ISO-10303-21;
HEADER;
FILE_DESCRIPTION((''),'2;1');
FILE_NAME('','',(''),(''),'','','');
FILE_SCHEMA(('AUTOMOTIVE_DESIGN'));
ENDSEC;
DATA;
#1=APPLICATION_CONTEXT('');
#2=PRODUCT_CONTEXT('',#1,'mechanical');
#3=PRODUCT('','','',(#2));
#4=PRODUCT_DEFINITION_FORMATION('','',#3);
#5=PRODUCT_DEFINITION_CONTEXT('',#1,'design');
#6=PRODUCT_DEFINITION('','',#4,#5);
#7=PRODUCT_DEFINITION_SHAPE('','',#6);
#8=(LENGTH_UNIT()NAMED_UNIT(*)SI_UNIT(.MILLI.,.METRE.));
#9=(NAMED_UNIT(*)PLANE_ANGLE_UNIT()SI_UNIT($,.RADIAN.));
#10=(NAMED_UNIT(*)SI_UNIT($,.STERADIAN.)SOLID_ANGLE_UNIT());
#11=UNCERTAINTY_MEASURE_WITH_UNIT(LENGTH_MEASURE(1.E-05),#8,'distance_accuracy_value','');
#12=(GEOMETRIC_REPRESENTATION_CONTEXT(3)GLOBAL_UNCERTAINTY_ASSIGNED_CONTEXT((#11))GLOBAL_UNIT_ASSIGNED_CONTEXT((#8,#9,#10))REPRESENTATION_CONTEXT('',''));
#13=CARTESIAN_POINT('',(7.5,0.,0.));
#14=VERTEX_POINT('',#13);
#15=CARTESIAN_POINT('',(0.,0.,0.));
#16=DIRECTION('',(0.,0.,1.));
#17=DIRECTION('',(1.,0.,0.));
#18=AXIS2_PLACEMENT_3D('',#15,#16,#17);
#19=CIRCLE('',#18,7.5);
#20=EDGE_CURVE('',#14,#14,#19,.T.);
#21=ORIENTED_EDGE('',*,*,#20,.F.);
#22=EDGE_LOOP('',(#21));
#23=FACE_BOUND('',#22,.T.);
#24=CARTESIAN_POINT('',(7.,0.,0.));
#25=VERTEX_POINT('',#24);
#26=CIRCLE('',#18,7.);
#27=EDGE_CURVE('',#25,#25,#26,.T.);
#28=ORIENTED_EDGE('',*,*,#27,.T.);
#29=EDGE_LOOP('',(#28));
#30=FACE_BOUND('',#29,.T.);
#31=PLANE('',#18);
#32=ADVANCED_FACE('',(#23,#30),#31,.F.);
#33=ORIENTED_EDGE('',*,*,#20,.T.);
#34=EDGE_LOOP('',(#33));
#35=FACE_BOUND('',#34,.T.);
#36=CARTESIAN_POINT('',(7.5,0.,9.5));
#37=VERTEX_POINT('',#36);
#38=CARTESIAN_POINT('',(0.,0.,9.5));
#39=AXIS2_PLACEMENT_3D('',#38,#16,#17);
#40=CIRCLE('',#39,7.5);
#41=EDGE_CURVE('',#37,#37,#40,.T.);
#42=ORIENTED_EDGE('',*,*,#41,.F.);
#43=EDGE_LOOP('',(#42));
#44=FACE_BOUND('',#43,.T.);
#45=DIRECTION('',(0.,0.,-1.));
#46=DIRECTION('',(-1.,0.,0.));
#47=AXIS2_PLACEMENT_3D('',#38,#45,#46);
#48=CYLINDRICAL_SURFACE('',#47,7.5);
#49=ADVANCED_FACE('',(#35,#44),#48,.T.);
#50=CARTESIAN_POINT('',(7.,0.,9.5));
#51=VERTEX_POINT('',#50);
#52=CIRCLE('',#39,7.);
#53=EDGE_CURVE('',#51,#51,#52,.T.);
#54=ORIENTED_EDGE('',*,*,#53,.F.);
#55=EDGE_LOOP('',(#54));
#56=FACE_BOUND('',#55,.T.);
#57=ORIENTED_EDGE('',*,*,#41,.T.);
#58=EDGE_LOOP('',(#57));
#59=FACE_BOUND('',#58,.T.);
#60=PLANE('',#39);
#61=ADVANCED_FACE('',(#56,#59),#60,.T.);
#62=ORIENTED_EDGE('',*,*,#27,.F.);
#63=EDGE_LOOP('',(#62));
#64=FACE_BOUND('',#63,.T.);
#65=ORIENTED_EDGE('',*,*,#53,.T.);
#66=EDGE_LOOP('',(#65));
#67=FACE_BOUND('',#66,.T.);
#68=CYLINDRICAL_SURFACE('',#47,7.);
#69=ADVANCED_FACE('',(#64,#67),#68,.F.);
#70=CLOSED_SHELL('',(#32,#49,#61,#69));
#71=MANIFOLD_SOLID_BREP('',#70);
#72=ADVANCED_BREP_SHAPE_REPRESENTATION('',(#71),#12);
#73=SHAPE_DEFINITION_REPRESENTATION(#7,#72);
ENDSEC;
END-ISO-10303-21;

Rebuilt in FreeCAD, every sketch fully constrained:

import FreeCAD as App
import Part
import Sketcher
from FreeCAD import Vector

doc = App.newDocument("Part")
body = doc.addObject("PartDesign::Body", "Body")

sketch1 = doc.addObject("Sketcher::SketchObject", "Sketch")
body.addObject(sketch1)
sketch1.AttachmentSupport = (doc.XY_Plane, [""])
sketch1.MapMode = "FlatFace"
sketch1.addGeometry(Part.Circle(Vector(0, 0, 0), Vector(0, 0, 1), 7.5), False)
sketch1.addGeometry(Part.Circle(Vector(0, 0, 0), Vector(0, 0, 1), 7), False)
sketch1.addConstraint(Sketcher.Constraint("Coincident", 0, 3, -1, 1))
sketch1.addConstraint(Sketcher.Constraint("Coincident", 1, 3, -1, 1))
sketch1.addConstraint(Sketcher.Constraint("Diameter", 0, 15.0))
sketch1.addConstraint(Sketcher.Constraint("Diameter", 1, 14.0))
pad1 = doc.addObject("PartDesign::Pad", "Pad")
body.addObject(pad1)
pad1.Profile = sketch1
pad1.Length = 9.5

doc.recompute()
